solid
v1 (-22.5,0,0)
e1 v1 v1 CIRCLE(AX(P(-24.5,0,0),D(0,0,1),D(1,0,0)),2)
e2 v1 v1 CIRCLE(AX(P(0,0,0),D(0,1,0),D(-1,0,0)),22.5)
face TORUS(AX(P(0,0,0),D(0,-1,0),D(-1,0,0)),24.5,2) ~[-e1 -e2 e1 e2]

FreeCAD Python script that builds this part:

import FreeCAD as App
import Part
import Sketcher

V = App.Vector
Q = App.Units.Quantity

doc = App.newDocument("Part")
body = doc.addObject("PartDesign::Body", "Body")

# Sketch on XY plane
sketch1 = body.newObject("Sketcher::SketchObject", "Sketch")
sketch1.AttachmentSupport = (doc.getObject("XY_Plane"), [""])
sketch1.MapMode = "FlatFace"
sketch1.addGeometry(Part.Circle(V(-24.5, 0, 0), V(0, 0, 1), 2), False)
sketch1.addConstraint([
    Sketcher.Constraint("PointOnObject", 0, 3, -1),
    Sketcher.Constraint("Diameter", 0, Q("4 mm")),
    Sketcher.Constraint("DistanceX", 0, 3, -1, 1, Q("24.5 mm")),
])
revolution = body.newObject("PartDesign::Revolution", "Revolution")
revolution.Profile = sketch1
revolution.ReferenceAxis = (sketch1, ["V_Axis"])
revolution.Angle = 360

doc.recompute()
